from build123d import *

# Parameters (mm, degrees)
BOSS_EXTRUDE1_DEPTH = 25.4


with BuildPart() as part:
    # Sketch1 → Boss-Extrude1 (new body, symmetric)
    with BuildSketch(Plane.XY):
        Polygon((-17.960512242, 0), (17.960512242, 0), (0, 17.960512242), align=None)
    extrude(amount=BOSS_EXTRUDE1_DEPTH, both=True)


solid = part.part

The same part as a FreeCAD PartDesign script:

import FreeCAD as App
import Part
import Sketcher
Q = App.Units.Quantity


def add_polygon(sketch, points):
    """Adds a closed chain of lines whose ends are joined by coincident constraints."""
    first, n = sketch.GeometryCount, len(points)
    for a, b in zip(points, points[1:] + points[:1]):
        sketch.addGeometry(Part.LineSegment(App.Vector(*a, 0), App.Vector(*b, 0)), False)
    for i in range(n):
        sketch.addConstraint(Sketcher.Constraint("Coincident", first + i, 2, first + (i + 1) % n, 1))

doc = App.newDocument("Part")
params = doc.addObject("Spreadsheet::Sheet", "Params")
for row, (alias, value) in enumerate([
    ("sketch1_length", "1 in"),
    ("pad1_length", "2 in"),
], start=1):
    params.set(f"A{row}", alias)
    params.set(f"B{row}", "=" + value)
    params.setAlias(f"B{row}", alias)

body = doc.addObject("PartDesign::Body", "Body")

sketch1 = doc.addObject("Sketcher::SketchObject", "Sketch")
body.addObject(sketch1)
sketch1.AttachmentSupport = (doc.XY_Plane, [""])
sketch1.MapMode = "FlatFace"
add_polygon(sketch1, [(-18, 0), (18, 0), (0, 18)])
sketch1.addConstraint([
    Sketcher.Constraint("Horizontal", 0),
    Sketcher.Constraint("Symmetric", 0, 2, 2, 2, -1, 1),
    Sketcher.Constraint("PointOnObject", 1, 2, -2),
    Sketcher.Constraint("Perpendicular", 1, 2),
    Sketcher.Constraint("Distance", 1, Q("1 in")),
])
sketch1.setExpression("Constraints[7]", "Params.sketch1_length")
pad1 = doc.addObject("PartDesign::Pad", "Pad")
body.addObject(pad1)
pad1.Profile = sketch1
pad1.setExpression("Length", "Params.pad1_length")
pad1.Midplane = True

doc.recompute()
